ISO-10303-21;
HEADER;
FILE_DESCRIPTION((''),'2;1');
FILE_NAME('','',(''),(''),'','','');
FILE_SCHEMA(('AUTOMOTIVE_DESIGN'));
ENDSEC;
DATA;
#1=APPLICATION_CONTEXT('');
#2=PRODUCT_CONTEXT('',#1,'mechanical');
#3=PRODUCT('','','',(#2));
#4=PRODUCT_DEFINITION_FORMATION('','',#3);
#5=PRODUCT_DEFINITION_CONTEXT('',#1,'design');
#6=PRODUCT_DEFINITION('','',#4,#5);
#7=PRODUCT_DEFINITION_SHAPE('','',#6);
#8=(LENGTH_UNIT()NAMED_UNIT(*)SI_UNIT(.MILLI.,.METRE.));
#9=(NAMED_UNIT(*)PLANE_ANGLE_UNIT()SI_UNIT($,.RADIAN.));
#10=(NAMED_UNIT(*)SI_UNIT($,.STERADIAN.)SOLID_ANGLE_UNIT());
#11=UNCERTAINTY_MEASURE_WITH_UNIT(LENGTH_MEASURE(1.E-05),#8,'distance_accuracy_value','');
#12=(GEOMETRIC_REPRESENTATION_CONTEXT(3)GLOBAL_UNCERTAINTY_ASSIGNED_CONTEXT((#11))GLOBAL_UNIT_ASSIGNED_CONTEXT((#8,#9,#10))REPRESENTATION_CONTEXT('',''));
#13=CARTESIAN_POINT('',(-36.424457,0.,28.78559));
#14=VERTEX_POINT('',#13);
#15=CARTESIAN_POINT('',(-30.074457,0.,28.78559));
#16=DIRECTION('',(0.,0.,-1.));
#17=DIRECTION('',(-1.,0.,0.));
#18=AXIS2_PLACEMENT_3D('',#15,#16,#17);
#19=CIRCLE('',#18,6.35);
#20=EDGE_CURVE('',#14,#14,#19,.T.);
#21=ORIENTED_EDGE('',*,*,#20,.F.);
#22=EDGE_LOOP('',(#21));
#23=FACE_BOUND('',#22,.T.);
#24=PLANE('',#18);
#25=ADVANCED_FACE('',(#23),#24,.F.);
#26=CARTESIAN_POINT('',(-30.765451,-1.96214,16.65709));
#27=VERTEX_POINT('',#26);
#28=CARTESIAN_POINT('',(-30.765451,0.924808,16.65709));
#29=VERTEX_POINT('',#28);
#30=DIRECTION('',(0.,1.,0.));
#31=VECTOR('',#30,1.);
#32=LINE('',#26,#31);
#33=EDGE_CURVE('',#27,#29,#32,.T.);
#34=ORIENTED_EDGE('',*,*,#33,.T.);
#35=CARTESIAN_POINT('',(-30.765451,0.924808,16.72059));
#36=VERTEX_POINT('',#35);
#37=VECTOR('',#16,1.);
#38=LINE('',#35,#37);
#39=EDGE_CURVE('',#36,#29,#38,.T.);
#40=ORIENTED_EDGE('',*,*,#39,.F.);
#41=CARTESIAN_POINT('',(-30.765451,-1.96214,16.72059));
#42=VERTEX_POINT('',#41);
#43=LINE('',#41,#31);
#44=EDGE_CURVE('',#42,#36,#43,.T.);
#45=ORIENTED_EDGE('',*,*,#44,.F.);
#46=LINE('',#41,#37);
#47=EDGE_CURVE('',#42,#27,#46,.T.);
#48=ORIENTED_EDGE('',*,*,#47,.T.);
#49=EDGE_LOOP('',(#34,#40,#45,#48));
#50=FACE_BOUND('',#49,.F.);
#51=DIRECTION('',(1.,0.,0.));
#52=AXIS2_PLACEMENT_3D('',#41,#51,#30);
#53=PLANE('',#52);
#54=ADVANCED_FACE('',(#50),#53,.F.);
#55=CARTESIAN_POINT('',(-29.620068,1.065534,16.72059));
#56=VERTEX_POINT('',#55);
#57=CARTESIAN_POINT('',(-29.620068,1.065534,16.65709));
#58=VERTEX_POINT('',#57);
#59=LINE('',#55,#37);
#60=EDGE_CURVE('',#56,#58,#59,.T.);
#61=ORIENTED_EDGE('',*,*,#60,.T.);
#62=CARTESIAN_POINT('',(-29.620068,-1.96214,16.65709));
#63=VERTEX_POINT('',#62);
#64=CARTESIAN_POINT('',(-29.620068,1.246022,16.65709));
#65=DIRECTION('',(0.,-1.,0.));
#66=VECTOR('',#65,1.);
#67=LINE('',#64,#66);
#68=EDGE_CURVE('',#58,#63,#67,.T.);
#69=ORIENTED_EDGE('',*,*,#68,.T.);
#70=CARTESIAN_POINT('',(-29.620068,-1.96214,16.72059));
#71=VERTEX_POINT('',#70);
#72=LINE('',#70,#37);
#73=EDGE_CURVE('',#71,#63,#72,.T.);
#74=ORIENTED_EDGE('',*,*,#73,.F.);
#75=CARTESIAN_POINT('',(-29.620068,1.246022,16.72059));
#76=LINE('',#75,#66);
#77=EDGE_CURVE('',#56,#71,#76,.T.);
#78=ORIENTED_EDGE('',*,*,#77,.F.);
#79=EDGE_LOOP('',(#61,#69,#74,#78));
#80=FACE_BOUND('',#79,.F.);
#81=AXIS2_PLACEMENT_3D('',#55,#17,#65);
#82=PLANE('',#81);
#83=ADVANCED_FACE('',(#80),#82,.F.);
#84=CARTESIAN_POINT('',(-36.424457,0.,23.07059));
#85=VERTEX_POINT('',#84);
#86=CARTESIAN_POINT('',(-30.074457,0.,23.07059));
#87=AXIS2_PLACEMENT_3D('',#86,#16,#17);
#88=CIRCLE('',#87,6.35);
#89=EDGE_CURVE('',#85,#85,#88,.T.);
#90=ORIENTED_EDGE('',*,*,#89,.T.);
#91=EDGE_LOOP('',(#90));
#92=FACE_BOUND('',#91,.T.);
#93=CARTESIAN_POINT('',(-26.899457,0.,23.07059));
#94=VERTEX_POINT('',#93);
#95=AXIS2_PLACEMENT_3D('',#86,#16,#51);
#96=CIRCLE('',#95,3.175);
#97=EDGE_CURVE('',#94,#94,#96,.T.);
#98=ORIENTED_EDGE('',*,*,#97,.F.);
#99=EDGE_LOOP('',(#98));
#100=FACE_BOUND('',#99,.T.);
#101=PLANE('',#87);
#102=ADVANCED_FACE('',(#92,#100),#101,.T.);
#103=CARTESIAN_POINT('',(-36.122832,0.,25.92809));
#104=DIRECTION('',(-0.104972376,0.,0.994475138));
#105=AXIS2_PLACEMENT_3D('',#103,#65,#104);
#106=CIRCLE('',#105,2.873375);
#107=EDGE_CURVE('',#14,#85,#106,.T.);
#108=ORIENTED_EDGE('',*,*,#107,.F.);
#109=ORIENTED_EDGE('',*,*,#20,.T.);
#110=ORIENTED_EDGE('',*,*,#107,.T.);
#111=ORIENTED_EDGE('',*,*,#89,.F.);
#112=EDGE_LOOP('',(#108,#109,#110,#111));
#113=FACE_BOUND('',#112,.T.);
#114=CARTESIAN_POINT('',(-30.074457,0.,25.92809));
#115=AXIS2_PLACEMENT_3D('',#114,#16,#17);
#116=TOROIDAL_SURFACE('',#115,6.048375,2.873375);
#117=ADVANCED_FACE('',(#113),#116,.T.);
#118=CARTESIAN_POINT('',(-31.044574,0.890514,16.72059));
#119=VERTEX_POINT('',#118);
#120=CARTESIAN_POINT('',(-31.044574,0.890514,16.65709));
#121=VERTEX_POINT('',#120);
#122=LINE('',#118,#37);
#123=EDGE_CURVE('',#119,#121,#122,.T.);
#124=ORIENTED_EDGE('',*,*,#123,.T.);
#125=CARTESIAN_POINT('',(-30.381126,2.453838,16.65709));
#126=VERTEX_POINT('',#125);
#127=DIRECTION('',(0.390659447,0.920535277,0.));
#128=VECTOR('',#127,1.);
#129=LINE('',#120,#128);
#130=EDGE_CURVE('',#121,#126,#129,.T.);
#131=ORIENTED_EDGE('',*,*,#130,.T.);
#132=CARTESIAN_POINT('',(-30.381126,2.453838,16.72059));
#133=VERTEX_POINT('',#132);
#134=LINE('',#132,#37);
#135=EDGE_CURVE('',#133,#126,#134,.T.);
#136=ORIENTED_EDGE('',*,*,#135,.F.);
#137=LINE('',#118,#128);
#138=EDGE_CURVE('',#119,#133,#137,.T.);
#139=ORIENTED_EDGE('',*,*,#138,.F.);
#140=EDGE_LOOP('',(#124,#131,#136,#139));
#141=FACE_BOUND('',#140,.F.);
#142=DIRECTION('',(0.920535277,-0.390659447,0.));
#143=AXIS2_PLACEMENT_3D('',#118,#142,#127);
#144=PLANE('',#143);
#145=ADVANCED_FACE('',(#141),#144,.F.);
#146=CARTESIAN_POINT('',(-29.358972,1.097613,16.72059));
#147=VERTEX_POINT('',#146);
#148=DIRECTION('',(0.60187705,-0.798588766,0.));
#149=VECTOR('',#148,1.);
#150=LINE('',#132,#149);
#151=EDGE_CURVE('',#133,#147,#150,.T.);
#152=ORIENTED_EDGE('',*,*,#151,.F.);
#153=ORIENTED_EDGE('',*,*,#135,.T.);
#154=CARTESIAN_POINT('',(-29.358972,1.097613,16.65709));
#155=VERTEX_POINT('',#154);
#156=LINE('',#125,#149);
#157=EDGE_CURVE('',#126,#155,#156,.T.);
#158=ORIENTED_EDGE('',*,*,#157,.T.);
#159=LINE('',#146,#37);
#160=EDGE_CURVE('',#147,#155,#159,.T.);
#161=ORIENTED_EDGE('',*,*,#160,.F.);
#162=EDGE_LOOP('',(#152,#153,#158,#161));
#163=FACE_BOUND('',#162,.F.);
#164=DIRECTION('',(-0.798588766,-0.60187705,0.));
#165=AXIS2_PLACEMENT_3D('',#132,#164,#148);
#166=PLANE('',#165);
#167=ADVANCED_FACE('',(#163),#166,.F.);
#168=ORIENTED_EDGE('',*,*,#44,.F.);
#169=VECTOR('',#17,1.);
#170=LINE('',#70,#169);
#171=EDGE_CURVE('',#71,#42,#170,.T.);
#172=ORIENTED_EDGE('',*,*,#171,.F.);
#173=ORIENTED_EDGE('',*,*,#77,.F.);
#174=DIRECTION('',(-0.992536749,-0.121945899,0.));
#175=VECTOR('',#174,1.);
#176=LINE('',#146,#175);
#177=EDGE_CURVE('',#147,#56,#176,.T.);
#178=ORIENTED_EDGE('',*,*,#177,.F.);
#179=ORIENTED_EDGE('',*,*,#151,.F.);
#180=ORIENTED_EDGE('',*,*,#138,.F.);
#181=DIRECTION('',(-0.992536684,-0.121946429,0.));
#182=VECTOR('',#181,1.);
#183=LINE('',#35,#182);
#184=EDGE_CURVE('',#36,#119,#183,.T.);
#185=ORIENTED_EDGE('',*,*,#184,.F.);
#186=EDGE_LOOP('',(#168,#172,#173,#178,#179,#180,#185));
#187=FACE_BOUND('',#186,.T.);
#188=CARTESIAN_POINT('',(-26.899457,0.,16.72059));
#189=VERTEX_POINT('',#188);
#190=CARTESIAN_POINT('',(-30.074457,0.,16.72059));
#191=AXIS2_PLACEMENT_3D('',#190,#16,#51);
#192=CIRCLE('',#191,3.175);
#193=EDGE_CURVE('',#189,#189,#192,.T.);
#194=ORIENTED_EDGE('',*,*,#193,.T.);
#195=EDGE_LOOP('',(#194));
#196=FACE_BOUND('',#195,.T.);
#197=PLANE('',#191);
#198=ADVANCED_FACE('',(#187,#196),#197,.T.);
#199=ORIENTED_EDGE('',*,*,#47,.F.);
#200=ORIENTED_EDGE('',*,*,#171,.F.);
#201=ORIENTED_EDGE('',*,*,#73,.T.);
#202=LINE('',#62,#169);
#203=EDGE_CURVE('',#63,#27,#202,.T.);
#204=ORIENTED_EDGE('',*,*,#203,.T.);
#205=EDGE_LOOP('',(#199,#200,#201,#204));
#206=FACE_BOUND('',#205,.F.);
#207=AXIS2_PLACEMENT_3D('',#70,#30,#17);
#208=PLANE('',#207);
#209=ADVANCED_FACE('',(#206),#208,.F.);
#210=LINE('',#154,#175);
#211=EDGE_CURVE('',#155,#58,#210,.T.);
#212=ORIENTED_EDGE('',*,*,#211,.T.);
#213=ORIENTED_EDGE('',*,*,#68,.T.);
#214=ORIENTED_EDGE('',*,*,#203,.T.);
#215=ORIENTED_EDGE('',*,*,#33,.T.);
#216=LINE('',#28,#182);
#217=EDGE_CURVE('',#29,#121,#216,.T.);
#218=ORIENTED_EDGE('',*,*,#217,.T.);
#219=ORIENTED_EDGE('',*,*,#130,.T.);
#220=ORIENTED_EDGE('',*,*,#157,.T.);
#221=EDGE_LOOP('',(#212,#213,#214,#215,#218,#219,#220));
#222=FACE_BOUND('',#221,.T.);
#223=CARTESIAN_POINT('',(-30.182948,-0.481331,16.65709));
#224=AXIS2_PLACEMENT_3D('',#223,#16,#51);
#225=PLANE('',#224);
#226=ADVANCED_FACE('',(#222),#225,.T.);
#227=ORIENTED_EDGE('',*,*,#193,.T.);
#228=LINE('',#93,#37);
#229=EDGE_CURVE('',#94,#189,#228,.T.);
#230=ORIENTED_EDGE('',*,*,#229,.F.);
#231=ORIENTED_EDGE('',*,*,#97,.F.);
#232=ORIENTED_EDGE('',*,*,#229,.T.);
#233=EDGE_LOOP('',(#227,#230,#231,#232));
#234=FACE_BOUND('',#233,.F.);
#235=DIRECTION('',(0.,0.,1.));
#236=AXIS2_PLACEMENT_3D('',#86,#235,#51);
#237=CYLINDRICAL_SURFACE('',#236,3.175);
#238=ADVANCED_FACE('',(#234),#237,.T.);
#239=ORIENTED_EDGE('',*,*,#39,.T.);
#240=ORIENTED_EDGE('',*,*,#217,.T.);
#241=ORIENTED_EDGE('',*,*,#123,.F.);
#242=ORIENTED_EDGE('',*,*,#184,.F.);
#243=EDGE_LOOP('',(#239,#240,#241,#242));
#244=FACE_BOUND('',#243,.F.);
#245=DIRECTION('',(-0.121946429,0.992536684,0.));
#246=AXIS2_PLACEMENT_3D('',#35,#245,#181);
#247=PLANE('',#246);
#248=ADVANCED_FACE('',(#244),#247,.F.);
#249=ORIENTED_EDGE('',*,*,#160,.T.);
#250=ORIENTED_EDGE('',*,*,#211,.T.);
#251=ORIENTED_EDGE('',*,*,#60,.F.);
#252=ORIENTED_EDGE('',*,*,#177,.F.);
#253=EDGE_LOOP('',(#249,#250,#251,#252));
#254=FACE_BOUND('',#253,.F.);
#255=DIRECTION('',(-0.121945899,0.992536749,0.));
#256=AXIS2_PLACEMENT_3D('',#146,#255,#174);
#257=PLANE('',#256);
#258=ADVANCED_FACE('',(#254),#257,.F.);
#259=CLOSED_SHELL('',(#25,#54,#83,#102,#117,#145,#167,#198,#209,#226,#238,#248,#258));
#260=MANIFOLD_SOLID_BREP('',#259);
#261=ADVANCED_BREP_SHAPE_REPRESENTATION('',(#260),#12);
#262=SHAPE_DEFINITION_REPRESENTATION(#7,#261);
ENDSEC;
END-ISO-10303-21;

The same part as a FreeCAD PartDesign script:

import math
import FreeCAD as App
import Part
import Sketcher
from FreeCAD import Vector
Q = App.Units.Quantity


def add_polygon(sketch, points):
    """Adds a closed chain of lines whose ends are joined by coincident constraints."""
    first, n = sketch.GeometryCount, len(points)
    for a, b in zip(points, points[1:] + points[:1]):
        sketch.addGeometry(Part.LineSegment(App.Vector(*a, 0), App.Vector(*b, 0)), False)
    for i in range(n):
        sketch.addConstraint(Sketcher.Constraint("Coincident", first + i, 2, first + (i + 1) % n, 1))

doc = App.newDocument("Part")
body = doc.addObject("PartDesign::Body", "Body")

# Sketch on XZ plane
sketch1 = body.newObject("Sketcher::SketchObject", "Sketch")
sketch1.AttachmentSupport = (doc.getObject("XZ_Plane"), [""])
sketch1.MapMode = "FlatFace"
sketch1.addGeometry([
    Part.LineSegment(Vector(-30.074457, 23.07059, 0), Vector(-30.074457, 28.78559, 0)),
    Part.LineSegment(Vector(-30.074457, 28.78559, 0), Vector(-36.424457, 28.78559, 0)),
    Part.ArcOfCircle(Part.Circle(Vector(-36.122832, 25.92809, 0), Vector(0, 0, 1), 2.873375), math.radians(96.025575), math.radians(263.974425)),
    Part.LineSegment(Vector(-36.424457, 23.07059, 0), Vector(-30.074457, 23.07059, 0)),
], False)
sketch1.addGeometry(Part.LineSegment(Vector(-30.074457, 28.78559, 0), Vector(-30.074457, 23.07059, 0)), True)  # axis
sketch1.addConstraint([
    Sketcher.Constraint("Coincident", 0, 2, 1, 1),
    Sketcher.Constraint("Coincident", 1, 2, 2, 1),
    Sketcher.Constraint("Coincident", 2, 2, 3, 1),
    Sketcher.Constraint("Coincident", 3, 2, 0, 1),
    Sketcher.Constraint("Vertical", 0),
    Sketcher.Constraint("Horizontal", 1),
    Sketcher.Constraint("Horizontal", 3),
    Sketcher.Constraint("Vertical", 4),
    Sketcher.Constraint("Coincident", 4, 1, 0, 2),
    Sketcher.Constraint("Horizontal", 2, 2, 4, 2),
    Sketcher.Constraint("Vertical", 1, 2, 2, 2),
    Sketcher.Constraint("DistanceX", 1, 2, 1, 1, Q("0.25 in")),
    Sketcher.Constraint("DistanceY", 0, 1, 0, 2, Q("0.225 in")),
    Sketcher.Constraint("Radius", 2, 2.873375),
    Sketcher.Constraint("DistanceY", -1, 1, 2, 3, 25.92809),
    Sketcher.Constraint("DistanceX", 2, 3, -1, 1, 36.122832),
])
revolution = body.newObject("PartDesign::Revolution", "Revolution")
revolution.Profile = sketch1
revolution.ReferenceAxis = (sketch1, ["Axis0"])
revolution.Angle = 360

# Sketch on XY plane
sketch2 = body.newObject("Sketcher::SketchObject", "Sketch001")
sketch2.AttachmentSupport = (doc.getObject("XY_Plane"), [""])
sketch2.MapMode = "FlatFace"
sketch2.AttachmentOffset = App.Placement(Vector(0, 0, 23.07059), App.Rotation())
sketch2.addGeometry(Part.Circle(Vector(-30.074457, 0, 0), Vector(0, 0, 1), 3.175), False)
sketch2.addConstraint([
    Sketcher.Constraint("PointOnObject", 0, 3, -1),
    Sketcher.Constraint("Diameter", 0, Q("0.25 in")),
    Sketcher.Constraint("DistanceX", 0, 3, -1, 1, 30.074457),
])
pad1 = body.newObject("PartDesign::Pad", "Pad")
pad1.Profile = sketch2
pad1.Length = Q("0.25 in")
pad1.Reversed = True

# Sketch on XY plane
sketch3 = body.newObject("Sketcher::SketchObject", "Sketch002")
sketch3.AttachmentSupport = (doc.getObject("XY_Plane"), [""])
sketch3.MapMode = "FlatFace"
sketch3.AttachmentOffset = App.Placement(Vector(0, 0, 16.72059), App.Rotation())
add_polygon(sketch3, [(-29.620068, -1.96214), (-30.765451, -1.96214), (-30.765451, 0.924808), (-31.044574, 0.890514), (-30.381126, 2.453838), (-29.358972, 1.097613), (-29.620068, 1.065534)])  # lines 0-6
sketch3.addConstraint([
    Sketcher.Constraint("Horizontal", 0),
    Sketcher.Constraint("Vertical", 1),
    Sketcher.Constraint("Vertical", 6),
    Sketcher.Constraint("Parallel", 2, 5),
    Sketcher.Constraint("Equal", 3, 4),
    Sketcher.Constraint("DistanceX", 2, 2, 4, 2, 1.685602),
    Sketcher.Constraint("DistanceY", 2, 2, 4, 2, 0.207099),
    Sketcher.Constraint("Distance", 2, 0.281222),
    Sketcher.Constraint("Distance", 5, 0.263059),
    Sketcher.Constraint("DistanceX", 0, 2, 0, 1, 1.145383),
    Sketcher.Constraint("DistanceY", 1, 1, 1, 2, 2.886948),
    Sketcher.Constraint("DistanceX", 0, 2, -1, 1, 30.765451),
    Sketcher.Constraint("DistanceY", 0, 2, -1, 1, 1.96214),
    Sketcher.Constraint("DistanceY", -1, 1, 3, 2, 2.453838),
])
pad2 = body.newObject("PartDesign::Pad", "Pad001")
pad2.Profile = sketch3
pad2.Length = Q("0.0025 in")
pad2.Reversed = True

doc.recompute()
